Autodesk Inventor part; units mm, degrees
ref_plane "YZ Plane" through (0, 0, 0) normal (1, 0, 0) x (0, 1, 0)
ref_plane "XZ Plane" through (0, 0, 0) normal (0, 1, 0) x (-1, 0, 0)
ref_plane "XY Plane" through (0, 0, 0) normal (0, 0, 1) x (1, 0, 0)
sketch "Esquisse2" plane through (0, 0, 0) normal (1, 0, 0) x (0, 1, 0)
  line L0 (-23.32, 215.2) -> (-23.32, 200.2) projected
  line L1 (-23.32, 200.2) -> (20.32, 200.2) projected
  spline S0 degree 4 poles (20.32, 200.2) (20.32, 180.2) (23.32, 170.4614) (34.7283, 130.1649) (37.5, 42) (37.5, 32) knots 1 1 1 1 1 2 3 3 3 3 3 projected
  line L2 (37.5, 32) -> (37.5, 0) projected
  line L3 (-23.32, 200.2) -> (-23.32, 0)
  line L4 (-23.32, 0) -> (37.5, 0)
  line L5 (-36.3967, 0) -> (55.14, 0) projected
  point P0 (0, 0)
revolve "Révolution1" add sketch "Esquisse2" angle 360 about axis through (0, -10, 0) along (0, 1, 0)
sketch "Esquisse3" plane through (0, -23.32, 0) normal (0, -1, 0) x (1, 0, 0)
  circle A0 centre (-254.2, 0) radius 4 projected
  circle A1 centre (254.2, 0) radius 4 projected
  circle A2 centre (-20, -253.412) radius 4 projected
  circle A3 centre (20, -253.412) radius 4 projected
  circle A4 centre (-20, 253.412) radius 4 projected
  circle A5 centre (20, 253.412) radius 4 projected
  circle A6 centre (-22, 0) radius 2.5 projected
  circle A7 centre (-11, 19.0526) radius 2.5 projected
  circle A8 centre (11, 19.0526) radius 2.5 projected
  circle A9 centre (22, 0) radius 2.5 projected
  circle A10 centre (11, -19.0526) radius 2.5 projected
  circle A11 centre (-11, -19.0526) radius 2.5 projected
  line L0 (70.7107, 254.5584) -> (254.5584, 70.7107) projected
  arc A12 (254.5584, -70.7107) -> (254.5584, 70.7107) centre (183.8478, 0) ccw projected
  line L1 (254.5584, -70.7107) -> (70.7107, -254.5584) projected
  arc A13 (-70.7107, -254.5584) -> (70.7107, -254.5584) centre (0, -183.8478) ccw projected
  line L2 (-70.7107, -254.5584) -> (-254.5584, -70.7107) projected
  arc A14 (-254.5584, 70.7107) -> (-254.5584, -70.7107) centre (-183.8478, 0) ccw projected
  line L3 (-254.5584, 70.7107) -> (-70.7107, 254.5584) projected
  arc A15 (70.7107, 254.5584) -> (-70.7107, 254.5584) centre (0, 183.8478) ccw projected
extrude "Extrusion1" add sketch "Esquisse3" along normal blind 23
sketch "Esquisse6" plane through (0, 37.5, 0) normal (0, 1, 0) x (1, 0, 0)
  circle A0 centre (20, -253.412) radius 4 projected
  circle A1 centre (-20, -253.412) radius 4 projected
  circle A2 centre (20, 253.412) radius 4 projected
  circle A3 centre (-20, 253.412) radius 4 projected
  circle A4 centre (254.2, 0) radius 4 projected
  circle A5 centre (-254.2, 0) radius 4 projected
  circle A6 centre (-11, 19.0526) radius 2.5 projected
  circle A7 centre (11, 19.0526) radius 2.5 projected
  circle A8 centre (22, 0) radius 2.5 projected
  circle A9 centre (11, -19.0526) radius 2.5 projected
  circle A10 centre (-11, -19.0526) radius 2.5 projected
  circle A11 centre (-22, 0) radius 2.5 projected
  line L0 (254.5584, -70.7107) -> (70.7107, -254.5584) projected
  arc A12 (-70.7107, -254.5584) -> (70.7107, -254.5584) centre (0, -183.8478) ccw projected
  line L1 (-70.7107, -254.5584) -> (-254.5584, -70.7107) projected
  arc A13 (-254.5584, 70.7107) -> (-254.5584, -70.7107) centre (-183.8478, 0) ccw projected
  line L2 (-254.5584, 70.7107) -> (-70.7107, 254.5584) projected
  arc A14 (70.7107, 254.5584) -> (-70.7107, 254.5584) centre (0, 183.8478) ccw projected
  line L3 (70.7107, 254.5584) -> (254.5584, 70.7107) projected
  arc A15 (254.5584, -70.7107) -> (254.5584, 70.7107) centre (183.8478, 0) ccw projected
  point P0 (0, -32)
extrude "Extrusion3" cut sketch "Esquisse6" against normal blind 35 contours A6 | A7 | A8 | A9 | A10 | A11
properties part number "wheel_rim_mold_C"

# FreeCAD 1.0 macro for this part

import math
import FreeCAD as App
import Part
import Sketcher
from FreeCAD import Vector
Q = App.Units.Quantity

doc = App.newDocument("Part")
body = doc.addObject("PartDesign::Body", "Body")

sketch1 = body.newObject("Sketcher::SketchObject", "Sketch")
sketch1.AttachmentSupport = (doc.getObject("YZ_Plane"), [""])
sketch1.MapMode = "FlatFace"
sketch1.addGeometry([
    Part.LineSegment(Vector(20.32, 200.2, 0), Vector(-23.32, 200.2, 0)),
    Part.LineSegment(Vector(-23.32, 200.2, 0), Vector(-23.32, 0, 0)),
    Part.LineSegment(Vector(-23.32, 0, 0), Vector(37.5, 0, 0)),
    Part.LineSegment(Vector(37.5, 0, 0), Vector(37.5, 32, 0)),
    Part.BSplineCurve([Vector(20.32, 200.2, 0), Vector(20.32, 180.2, 0), Vector(23.32, 170.4614, 0), Vector(34.7283, 130.1649, 0), Vector(37.5, 42, 0), Vector(37.5, 32, 0)], [5, 1, 5], [1, 2, 3], False, 4, [1, 1, 1, 1, 1, 1], False),
], False)
sketch1.addConstraint([
    Sketcher.Constraint("Block", 4),
    Sketcher.Constraint("Coincident", 0, 2, 1, 1),
    Sketcher.Constraint("Coincident", 1, 2, 2, 1),
    Sketcher.Constraint("Coincident", 2, 2, 3, 1),
    Sketcher.Constraint("Coincident", 3, 2, 4, 2),
    Sketcher.Constraint("Coincident", 4, 1, 0, 1),
    Sketcher.Constraint("Horizontal", 0),
    Sketcher.Constraint("Vertical", 1),
    Sketcher.Constraint("Horizontal", 2),
    Sketcher.Constraint("Vertical", 3),
    Sketcher.Constraint("PointOnObject", 1, 2, -1),
    Sketcher.Constraint("DistanceX", 0, 2, 0, 1, Q("43.64 mm")),
])
revolution = body.newObject("PartDesign::Revolution", "Revolution")
revolution.Profile = sketch1
revolution.ReferenceAxis = (sketch1, ["H_Axis"])
revolution.Angle = 360

sketch2 = body.newObject("Sketcher::SketchObject", "Sketch001")
sketch2.AttachmentSupport = (doc.getObject("XZ_Plane"), [""])
sketch2.MapMode = "FlatFace"
sketch2.AttachmentOffset = App.Placement(Vector(0, 0, 23.32), App.Rotation())
sketch2.addGeometry([
    Part.LineSegment(Vector(254.6, 70.7, 0), Vector(70.7, 254.6, 0)),
    Part.ArcOfCircle(Part.Circle(Vector(0, 183.8, 0), Vector(0, 0, 1), 100), math.radians(45), math.radians(135)),
    Part.LineSegment(Vector(-70.7, 254.6, 0), Vector(-254.6, 70.7, 0)),
    Part.ArcOfCircle(Part.Circle(Vector(-183.8, 0, 0), Vector(0, 0, 1), 100), math.radians(135), math.radians(225)),
    Part.LineSegment(Vector(-254.6, -70.7, 0), Vector(-70.7, -254.6, 0)),
    Part.ArcOfCircle(Part.Circle(Vector(0, -183.8, 0), Vector(0, 0, 1), 100), math.radians(-135), math.radians(-45)),
    Part.LineSegment(Vector(70.7, -254.6, 0), Vector(254.6, -70.7, 0)),
    Part.ArcOfCircle(Part.Circle(Vector(183.8, 0, 0), Vector(0, 0, 1), 100), math.radians(-45), math.radians(45)),
    Part.Circle(Vector(-20, -253.4, 0), Vector(0, 0, 1), 4),
    Part.Circle(Vector(-254.2, 0, 0), Vector(0, 0, 1), 4),
    Part.Circle(Vector(-11, -19.1, 0), Vector(0, 0, 1), 2.5),
    Part.Circle(Vector(-22, 0, 0), Vector(0, 0, 1), 2.5),
    Part.Circle(Vector(20, -253.4, 0), Vector(0, 0, 1), 4),
    Part.Circle(Vector(11, -19.1, 0), Vector(0, 0, 1), 2.5),
    Part.Circle(Vector(22, 0, 0), Vector(0, 0, 1), 2.5),
    Part.Circle(Vector(254.2, 0, 0), Vector(0, 0, 1), 4),
    Part.Circle(Vector(-11, 19.1, 0), Vector(0, 0, 1), 2.5),
    Part.Circle(Vector(-20, 253.4, 0), Vector(0, 0, 1), 4),
    Part.Circle(Vector(11, 19.1, 0), Vector(0, 0, 1), 2.5),
    Part.Circle(Vector(20, 253.4, 0), Vector(0, 0, 1), 4),
], False)
sketch2.addConstraint([
    Sketcher.Constraint("Tangent", 0, 2, 1, 1),
    Sketcher.Constraint("Tangent", 1, 2, 2, 1),
    Sketcher.Constraint("Tangent", 2, 2, 3, 1),
    Sketcher.Constraint("Tangent", 3, 2, 4, 1),
    Sketcher.Constraint("Tangent", 4, 2, 5, 1),
    Sketcher.Constraint("Tangent", 5, 2, 6, 1),
    Sketcher.Constraint("Tangent", 6, 2, 7, 1),
    Sketcher.Constraint("Tangent", 7, 2, 0, 1),
    Sketcher.Constraint("Equal", 1, 3),
    Sketcher.Constraint("Equal", 3, 5),
    Sketcher.Constraint("Equal", 5, 7),
    Sketcher.Constraint("Equal", 8, 9),
    Sketcher.Constraint("Equal", 10, 11),
    Sketcher.Constraint("Equal", 9, 12),
    Sketcher.Constraint("Equal", 11, 13),
    Sketcher.Constraint("Equal", 13, 14),
    Sketcher.Constraint("Equal", 12, 15),
    Sketcher.Constraint("Equal", 14, 16),
    Sketcher.Constraint("Equal", 15, 17),
    Sketcher.Constraint("Equal", 16, 18),
    Sketcher.Constraint("Equal", 17, 19),
    Sketcher.Constraint("Symmetric", 1, 3, 5, 3, -1, 1),
    Sketcher.Constraint("Symmetric", 3, 3, 7, 3, -1, 1),
    Sketcher.Constraint("Symmetric", 11, 3, 14, 3, -1, 1),
    Sketcher.Constraint("Symmetric", 9, 3, 15, 3, -1, 1),
    Sketcher.Constraint("Symmetric", 13, 3, 16, 3, -1, 1),
    Sketcher.Constraint("Symmetric", 12, 3, 17, 3, -1, 1),
    Sketcher.Constraint("Symmetric", 10, 3, 18, 3, -1, 1),
    Sketcher.Constraint("Symmetric", 8, 3, 19, 3, -1, 1),
    Sketcher.Constraint("Symmetric", 8, 3, 12, 3, -2),
    Sketcher.Constraint("Symmetric", 10, 3, 13, 3, -2),
    Sketcher.Constraint("Symmetric", 3, 2, 6, 2, -2),
    Sketcher.Constraint("PointOnObject", 9, 3, -1),
    Sketcher.Constraint("PointOnObject", 11, 3, -1),
    Sketcher.Constraint("Perpendicular", 0, 2),
    Sketcher.Constraint("Diameter", 8, Q("8 mm")),
    Sketcher.Constraint("Diameter", 10, Q("5 mm")),
    Sketcher.Constraint("Radius", 1, Q("100 mm")),
    Sketcher.Constraint("Distance", 0, Q("260 mm")),
    Sketcher.Constraint("DistanceX", 8, 3, -1, 1, Q("20 mm")),
    Sketcher.Constraint("DistanceX", 10, 3, -1, 1, Q("11 mm")),
    Sketcher.Constraint("DistanceX", 11, 3, -1, 1, Q("22 mm")),
    Sketcher.Constraint("DistanceX", 9, 3, -1, 1, Q("254.2 mm")),
    Sketcher.Constraint("DistanceY", 8, 3, -1, 1, Q("253.412 mm")),
    Sketcher.Constraint("DistanceY", 16, 3, 2, 2, Q("51.658 mm")),
])
pad1 = body.newObject("PartDesign::Pad", "Pad")
pad1.Profile = sketch2
pad1.Length = 23

sketch3 = body.newObject("Sketcher::SketchObject", "Sketch002")
sketch3.AttachmentSupport = (doc.getObject("XZ_Plane"), [""])
sketch3.MapMode = "FlatFace"
sketch3.AttachmentOffset = App.Placement(Vector(0, 0, -37.5), App.Rotation())
sketch3.addGeometry([
    Part.Circle(Vector(-11, -19.1, 0), Vector(0, 0, 1), 2.5),
    Part.Circle(Vector(11, -19.1, 0), Vector(0, 0, 1), 2.5),
    Part.Circle(Vector(22, 0, 0), Vector(0, 0, 1), 2.5),
    Part.Circle(Vector(11, 19.1, 0), Vector(0, 0, 1), 2.5),
    Part.Circle(Vector(-11, 19.1, 0), Vector(0, 0, 1), 2.5),
    Part.Circle(Vector(-22, 0, 0), Vector(0, 0, 1), 2.5),
], False)
sketch3.addConstraint([
    Sketcher.Constraint("Equal", 0, 1),
    Sketcher.Constraint("Equal", 1, 2),
    Sketcher.Constraint("Equal", 2, 3),
    Sketcher.Constraint("Equal", 3, 4),
    Sketcher.Constraint("Equal", 4, 5),
    Sketcher.Constraint("Symmetric", 0, 3, 3, 3, -1, 1),
    Sketcher.Constraint("Symmetric", 1, 3, 4, 3, -1, 1),
    Sketcher.Constraint("Symmetric", 2, 3, 5, 3, -1, 1),
    Sketcher.Constraint("Symmetric", 0, 3, 1, 3, -2),
    Sketcher.Constraint("PointOnObject", 2, 3, -1),
    Sketcher.Constraint("Diameter", 0, Q("5 mm")),
    Sketcher.Constraint("DistanceX", 0, 3, -1, 1, Q("11 mm")),
    Sketcher.Constraint("DistanceX", -1, 1, 2, 3, Q("22 mm")),
    Sketcher.Constraint("DistanceY", 0, 3, -1, 1, Q("19.0526 mm")),
])
pocket1 = body.newObject("PartDesign::Pocket", "Pocket")
pocket1.Profile = sketch3
pocket1.Length = 35
pocket1.Reversed = True

doc.recompute()
